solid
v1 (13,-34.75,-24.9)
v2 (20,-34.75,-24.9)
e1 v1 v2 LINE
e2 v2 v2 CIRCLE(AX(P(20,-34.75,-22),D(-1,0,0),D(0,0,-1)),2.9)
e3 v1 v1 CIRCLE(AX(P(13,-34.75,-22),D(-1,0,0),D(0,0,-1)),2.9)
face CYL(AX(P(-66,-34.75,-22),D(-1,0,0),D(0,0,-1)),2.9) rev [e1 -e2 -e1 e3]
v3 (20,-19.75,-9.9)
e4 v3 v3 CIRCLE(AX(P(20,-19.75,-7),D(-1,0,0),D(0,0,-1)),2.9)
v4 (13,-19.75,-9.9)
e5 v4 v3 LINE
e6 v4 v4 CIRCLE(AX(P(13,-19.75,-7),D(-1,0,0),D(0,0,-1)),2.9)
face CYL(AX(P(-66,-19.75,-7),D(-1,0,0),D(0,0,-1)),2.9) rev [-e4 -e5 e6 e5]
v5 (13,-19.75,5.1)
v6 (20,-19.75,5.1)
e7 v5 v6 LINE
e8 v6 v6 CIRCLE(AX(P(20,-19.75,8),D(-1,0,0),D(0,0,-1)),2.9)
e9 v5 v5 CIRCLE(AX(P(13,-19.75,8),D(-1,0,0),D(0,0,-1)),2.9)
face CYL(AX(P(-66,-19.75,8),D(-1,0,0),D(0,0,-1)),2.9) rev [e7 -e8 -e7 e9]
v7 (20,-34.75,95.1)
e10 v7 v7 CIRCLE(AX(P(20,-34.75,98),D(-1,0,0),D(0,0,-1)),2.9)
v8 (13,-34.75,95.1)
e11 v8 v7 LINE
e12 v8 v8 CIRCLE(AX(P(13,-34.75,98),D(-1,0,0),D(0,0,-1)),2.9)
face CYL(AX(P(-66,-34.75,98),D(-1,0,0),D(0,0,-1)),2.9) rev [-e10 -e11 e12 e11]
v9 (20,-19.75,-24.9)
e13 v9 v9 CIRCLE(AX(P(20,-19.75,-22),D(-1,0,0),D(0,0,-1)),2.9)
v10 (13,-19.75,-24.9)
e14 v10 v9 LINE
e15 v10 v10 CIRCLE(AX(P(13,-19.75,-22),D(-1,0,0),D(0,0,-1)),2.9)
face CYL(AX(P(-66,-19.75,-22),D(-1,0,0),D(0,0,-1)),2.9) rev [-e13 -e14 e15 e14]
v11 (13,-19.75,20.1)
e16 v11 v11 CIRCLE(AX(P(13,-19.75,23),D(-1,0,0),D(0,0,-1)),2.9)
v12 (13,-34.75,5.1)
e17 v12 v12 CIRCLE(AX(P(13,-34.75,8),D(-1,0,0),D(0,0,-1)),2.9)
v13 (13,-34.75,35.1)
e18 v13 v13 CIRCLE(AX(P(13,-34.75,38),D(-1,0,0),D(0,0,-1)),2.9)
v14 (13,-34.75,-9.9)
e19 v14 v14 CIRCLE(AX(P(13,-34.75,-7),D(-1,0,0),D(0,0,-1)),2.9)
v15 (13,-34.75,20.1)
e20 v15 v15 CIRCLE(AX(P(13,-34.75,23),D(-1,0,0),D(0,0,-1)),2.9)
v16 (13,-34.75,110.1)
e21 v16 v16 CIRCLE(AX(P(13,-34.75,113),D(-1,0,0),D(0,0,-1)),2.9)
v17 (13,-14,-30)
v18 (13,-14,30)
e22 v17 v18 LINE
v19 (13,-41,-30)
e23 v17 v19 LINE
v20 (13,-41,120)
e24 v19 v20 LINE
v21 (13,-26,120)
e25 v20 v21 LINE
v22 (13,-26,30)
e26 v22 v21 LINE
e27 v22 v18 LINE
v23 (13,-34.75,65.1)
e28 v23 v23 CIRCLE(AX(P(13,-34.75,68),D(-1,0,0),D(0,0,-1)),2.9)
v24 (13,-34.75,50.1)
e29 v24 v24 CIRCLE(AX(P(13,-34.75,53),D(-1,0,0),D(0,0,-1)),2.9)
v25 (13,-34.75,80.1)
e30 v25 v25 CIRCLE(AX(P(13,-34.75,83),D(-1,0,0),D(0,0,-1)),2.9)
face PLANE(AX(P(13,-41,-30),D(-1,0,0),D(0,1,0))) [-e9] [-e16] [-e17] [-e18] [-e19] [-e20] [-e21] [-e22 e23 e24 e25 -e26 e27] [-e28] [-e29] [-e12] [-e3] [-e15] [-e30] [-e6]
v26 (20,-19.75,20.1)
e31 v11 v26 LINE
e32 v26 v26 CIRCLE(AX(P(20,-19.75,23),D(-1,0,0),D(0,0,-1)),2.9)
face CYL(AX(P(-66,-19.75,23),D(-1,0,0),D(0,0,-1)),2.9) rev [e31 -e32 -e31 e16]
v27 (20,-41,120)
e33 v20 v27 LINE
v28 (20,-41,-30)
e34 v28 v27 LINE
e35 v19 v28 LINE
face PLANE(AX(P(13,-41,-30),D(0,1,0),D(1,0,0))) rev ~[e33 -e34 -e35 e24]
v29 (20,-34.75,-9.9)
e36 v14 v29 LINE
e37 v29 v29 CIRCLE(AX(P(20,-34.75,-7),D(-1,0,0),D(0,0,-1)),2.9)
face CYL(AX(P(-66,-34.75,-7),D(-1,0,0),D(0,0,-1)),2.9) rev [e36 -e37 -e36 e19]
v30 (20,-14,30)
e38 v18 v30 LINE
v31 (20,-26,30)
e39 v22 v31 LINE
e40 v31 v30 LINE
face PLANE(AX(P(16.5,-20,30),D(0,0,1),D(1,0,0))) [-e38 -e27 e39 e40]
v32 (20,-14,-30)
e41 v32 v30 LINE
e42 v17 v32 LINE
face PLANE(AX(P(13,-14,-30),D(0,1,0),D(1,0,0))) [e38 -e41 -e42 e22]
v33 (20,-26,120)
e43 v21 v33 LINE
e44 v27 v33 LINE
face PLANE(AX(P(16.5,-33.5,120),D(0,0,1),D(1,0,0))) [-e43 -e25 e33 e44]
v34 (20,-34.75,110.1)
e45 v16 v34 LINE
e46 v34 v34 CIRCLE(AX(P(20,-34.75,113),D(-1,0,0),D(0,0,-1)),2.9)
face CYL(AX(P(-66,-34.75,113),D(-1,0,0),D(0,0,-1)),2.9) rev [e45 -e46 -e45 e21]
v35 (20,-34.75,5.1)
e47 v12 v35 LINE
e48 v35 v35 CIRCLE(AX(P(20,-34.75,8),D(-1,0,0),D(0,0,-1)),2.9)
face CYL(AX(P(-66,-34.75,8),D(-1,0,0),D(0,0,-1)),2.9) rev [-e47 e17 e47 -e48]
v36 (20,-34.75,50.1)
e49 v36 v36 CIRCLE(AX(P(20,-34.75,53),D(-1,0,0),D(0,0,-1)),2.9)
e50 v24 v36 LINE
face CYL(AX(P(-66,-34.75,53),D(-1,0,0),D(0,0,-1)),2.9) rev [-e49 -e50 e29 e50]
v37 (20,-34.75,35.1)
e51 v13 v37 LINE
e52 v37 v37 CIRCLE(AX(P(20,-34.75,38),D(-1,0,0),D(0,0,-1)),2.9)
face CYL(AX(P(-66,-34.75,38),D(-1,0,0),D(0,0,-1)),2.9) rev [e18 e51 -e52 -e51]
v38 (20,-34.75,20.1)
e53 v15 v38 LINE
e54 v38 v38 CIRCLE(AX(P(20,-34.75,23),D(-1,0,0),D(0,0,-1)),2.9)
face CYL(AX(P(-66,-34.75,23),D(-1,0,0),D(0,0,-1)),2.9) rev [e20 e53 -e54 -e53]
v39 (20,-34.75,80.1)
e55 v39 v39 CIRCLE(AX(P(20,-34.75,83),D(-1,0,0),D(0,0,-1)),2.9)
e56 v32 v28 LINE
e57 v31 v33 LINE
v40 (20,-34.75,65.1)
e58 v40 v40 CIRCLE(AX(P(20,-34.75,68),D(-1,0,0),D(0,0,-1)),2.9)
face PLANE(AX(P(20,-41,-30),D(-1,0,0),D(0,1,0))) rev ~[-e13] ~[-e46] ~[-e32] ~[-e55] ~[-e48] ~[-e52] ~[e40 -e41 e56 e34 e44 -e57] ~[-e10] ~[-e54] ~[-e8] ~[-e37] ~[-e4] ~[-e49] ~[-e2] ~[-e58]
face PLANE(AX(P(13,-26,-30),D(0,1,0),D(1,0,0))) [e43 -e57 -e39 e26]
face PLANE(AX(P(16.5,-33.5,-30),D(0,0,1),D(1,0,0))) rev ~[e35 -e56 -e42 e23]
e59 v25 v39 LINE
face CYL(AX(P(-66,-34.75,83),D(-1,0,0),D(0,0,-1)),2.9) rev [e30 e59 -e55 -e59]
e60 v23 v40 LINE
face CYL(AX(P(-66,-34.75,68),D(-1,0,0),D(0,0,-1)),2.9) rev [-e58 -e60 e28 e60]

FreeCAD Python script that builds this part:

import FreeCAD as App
import Part
import Sketcher
from FreeCAD import Vector
Q = App.Units.Quantity

doc = App.newDocument("Part")
body = doc.addObject("PartDesign::Body", "Body")

# Sketch on YZ plane
sketch1 = body.newObject("Sketcher::SketchObject", "Sketch")
sketch1.AttachmentSupport = (doc.getObject("YZ_Plane"), [""])
sketch1.MapMode = "FlatFace"
sketch1.AttachmentOffset = App.Placement(Vector(0, 0, -66), App.Rotation())
sketch1.addGeometry(Part.Circle(Vector(0, 25, 0), Vector(0, 0, 1), 2.9), False)
sketch1.addConstraint([
    Sketcher.Constraint("PointOnObject", 0, 3, -2),
    Sketcher.Constraint("Diameter", 0, Q("5.8 mm")),
    Sketcher.Constraint("DistanceY", -1, 1, 0, 3, Q("25 mm")),
])
pad1 = body.newObject("PartDesign::Pad", "Pad")
pad1.Profile = sketch1
pad1.Length = 132
body2 = doc.addObject("PartDesign::Body", "Body001")

# Sketch on YZ plane
sketch2 = body2.newObject("Sketcher::SketchObject", "Sketch001")
sketch2.AttachmentSupport = (doc.getObject("YZ_Plane001"), [""])
sketch2.MapMode = "FlatFace"
sketch2.AttachmentOffset = App.Placement(Vector(0, 0, -66), App.Rotation())
sketch2.addGeometry(Part.Circle(Vector(0, 40, 0), Vector(0, 0, 1), 2.9), False)
sketch2.addConstraint([
    Sketcher.Constraint("PointOnObject", 0, 3, -2),
    Sketcher.Constraint("Diameter", 0, Q("5.8 mm")),
    Sketcher.Constraint("DistanceY", -1, 1, 0, 3, Q("40 mm")),
])
pad2 = body2.newObject("PartDesign::Pad", "Pad001")
pad2.Profile = sketch2
pad2.Length = 132
body3 = doc.addObject("PartDesign::Body", "Body002")

# Sketch on YZ plane
sketch3 = body3.newObject("Sketcher::SketchObject", "Sketch002")
sketch3.AttachmentSupport = (doc.getObject("YZ_Plane002"), [""])
sketch3.MapMode = "FlatFace"
sketch3.AttachmentOffset = App.Placement(Vector(0, 0, -66), App.Rotation())
sketch3.addGeometry(Part.Circle(Vector(0, 55, 0), Vector(0, 0, 1), 2.9), False)
sketch3.addConstraint([
    Sketcher.Constraint("PointOnObject", 0, 3, -2),
    Sketcher.Constraint("Diameter", 0, Q("5.8 mm")),
    Sketcher.Constraint("DistanceY", -1, 1, 0, 3, Q("55 mm")),
])
pad3 = body3.newObject("PartDesign::Pad", "Pad002")
pad3.Profile = sketch3
pad3.Length = 132
body4 = doc.addObject("PartDesign::Body", "Body003")

# Sketch on YZ plane
sketch4 = body4.newObject("Sketcher::SketchObject", "Sketch003")
sketch4.AttachmentSupport = (doc.getObject("YZ_Plane003"), [""])
sketch4.MapMode = "FlatFace"
sketch4.AttachmentOffset = App.Placement(Vector(0, 0, -66), App.Rotation())
sketch4.addGeometry(Part.Circle(Vector(0, 70, 0), Vector(0, 0, 1), 2.9), False)
sketch4.addConstraint([
    Sketcher.Constraint("PointOnObject", 0, 3, -2),
    Sketcher.Constraint("Diameter", 0, Q("5.8 mm")),
    Sketcher.Constraint("DistanceY", -1, 1, 0, 3, Q("70 mm")),
])
pad4 = body4.newObject("PartDesign::Pad", "Pad003")
pad4.Profile = sketch4
pad4.Length = 132
body5 = doc.addObject("PartDesign::Body", "Body004")

# Sketch on YZ plane
sketch5 = body5.newObject("Sketcher::SketchObject", "Sketch004")
sketch5.AttachmentSupport = (doc.getObject("YZ_Plane004"), [""])
sketch5.MapMode = "FlatFace"
sketch5.AttachmentOffset = App.Placement(Vector(0, 0, -66), App.Rotation())
sketch5.addGeometry(Part.Circle(Vector(0, 85, 0), Vector(0, 0, 1), 2.9), False)
sketch5.addConstraint([
    Sketcher.Constraint("PointOnObject", 0, 3, -2),
    Sketcher.Constraint("Diameter", 0, Q("5.8 mm")),
    Sketcher.Constraint("DistanceY", -1, 1, 0, 3, Q("85 mm")),
])
pad5 = body5.newObject("PartDesign::Pad", "Pad004")
pad5.Profile = sketch5
pad5.Length = 132
body6 = doc.addObject("PartDesign::Body", "Body005")

# Sketch on YZ plane
sketch6 = body6.newObject("Sketcher::SketchObject", "Sketch005")
sketch6.AttachmentSupport = (doc.getObject("YZ_Plane005"), [""])
sketch6.MapMode = "FlatFace"
sketch6.AttachmentOffset = App.Placement(Vector(0, 0, -66), App.Rotation())
sketch6.addGeometry(Part.Circle(Vector(0, 100, 0), Vector(0, 0, 1), 2.9), False)
sketch6.addConstraint([
    Sketcher.Constraint("PointOnObject", 0, 3, -2),
    Sketcher.Constraint("Diameter", 0, Q("5.8 mm")),
    Sketcher.Constraint("DistanceY", -1, 1, 0, 3, Q("100 mm")),
])
pad6 = body6.newObject("PartDesign::Pad", "Pad005")
pad6.Profile = sketch6
pad6.Length = 132
body7 = doc.addObject("PartDesign::Body", "Body006")

# Sketch on YZ plane
sketch7 = body7.newObject("Sketcher::SketchObject", "Sketch006")
sketch7.AttachmentSupport = (doc.getObject("YZ_Plane006"), [""])
sketch7.MapMode = "FlatFace"
sketch7.AttachmentOffset = App.Placement(Vector(0, 0, -66), App.Rotation())
sketch7.addGeometry(Part.Circle(Vector(0, 115, 0), Vector(0, 0, 1), 2.9), False)
sketch7.addConstraint([
    Sketcher.Constraint("PointOnObject", 0, 3, -2),
    Sketcher.Constraint("Diameter", 0, Q("5.8 mm")),
    Sketcher.Constraint("DistanceY", -1, 1, 0, 3, Q("115 mm")),
])
pad7 = body7.newObject("PartDesign::Pad", "Pad006")
pad7.Profile = sketch7
pad7.Length = 132
body8 = doc.addObject("PartDesign::Body", "Body007")

# Sketch on YZ plane
sketch8 = body8.newObject("Sketcher::SketchObject", "Sketch007")
sketch8.AttachmentSupport = (doc.getObject("YZ_Plane007"), [""])
sketch8.MapMode = "FlatFace"
sketch8.AttachmentOffset = App.Placement(Vector(0, 0, -66), App.Rotation())
sketch8.addGeometry(Part.Circle(Vector(0, 130, 0), Vector(0, 0, 1), 2.9), False)
sketch8.addConstraint([
    Sketcher.Constraint("PointOnObject", 0, 3, -2),
    Sketcher.Constraint("Diameter", 0, Q("5.8 mm")),
    Sketcher.Constraint("DistanceY", -1, 1, 0, 3, Q("130 mm")),
])
pad8 = body8.newObject("PartDesign::Pad", "Pad007")
pad8.Profile = sketch8
pad8.Length = 132
body9 = doc.addObject("PartDesign::Body", "Body008")

# Sketch on YZ plane
sketch9 = body9.newObject("Sketcher::SketchObject", "Sketch008")
sketch9.AttachmentSupport = (doc.getObject("YZ_Plane008"), [""])
sketch9.MapMode = "FlatFace"
sketch9.AttachmentOffset = App.Placement(Vector(0, 0, -66), App.Rotation())
sketch9.addGeometry(Part.Circle(Vector(0, 145, 0), Vector(0, 0, 1), 2.9), False)
sketch9.addConstraint([
    Sketcher.Constraint("PointOnObject", 0, 3, -2),
    Sketcher.Constraint("Diameter", 0, Q("5.8 mm")),
    Sketcher.Constraint("DistanceY", -1, 1, 0, 3, Q("145 mm")),
])
pad9 = body9.newObject("PartDesign::Pad", "Pad008")
pad9.Profile = sketch9
pad9.Length = 132
body10 = doc.addObject("PartDesign::Body", "Body009")

# Sketch on YZ plane
sketch10 = body10.newObject("Sketcher::SketchObject", "Sketch009")
sketch10.AttachmentSupport = (doc.getObject("YZ_Plane009"), [""])
sketch10.MapMode = "FlatFace"
sketch10.AttachmentOffset = App.Placement(Vector(0, 0, -66), App.Rotation())
sketch10.addGeometry(Part.Circle(Vector(0, 160, 0), Vector(0, 0, 1), 2.9), False)
sketch10.addConstraint([
    Sketcher.Constraint("PointOnObject", 0, 3, -2),
    Sketcher.Constraint("Diameter", 0, Q("5.8 mm")),
    Sketcher.Constraint("DistanceY", -1, 1, 0, 3, Q("160 mm")),
])
pad10 = body10.newObject("PartDesign::Pad", "Pad009")
pad10.Profile = sketch10
pad10.Length = 132
body11 = doc.addObject("PartDesign::Body", "Body010")

# Sketch on YZ plane
sketch11 = body11.newObject("Sketcher::SketchObject", "Sketch010")
sketch11.AttachmentSupport = (doc.getObject("YZ_Plane010"), [""])
sketch11.MapMode = "FlatFace"
sketch11.AttachmentOffset = App.Placement(Vector(0, 0, -66), App.Rotation())
sketch11.addGeometry(Part.Circle(Vector(0, 175, 0), Vector(0, 0, 1), 2.9), False)
sketch11.addConstraint([
    Sketcher.Constraint("PointOnObject", 0, 3, -2),
    Sketcher.Constraint("Diameter", 0, Q("5.8 mm")),
    Sketcher.Constraint("DistanceY", -1, 1, 0, 3, Q("175 mm")),
])
pad11 = body11.newObject("PartDesign::Pad", "Pad010")
pad11.Profile = sketch11
pad11.Length = 132
body12 = doc.addObject("PartDesign::Body", "Body011")

# Sketch on YZ plane
sketch12 = body12.newObject("Sketcher::SketchObject", "Sketch011")
sketch12.AttachmentSupport = (doc.getObject("YZ_Plane011"), [""])
sketch12.MapMode = "FlatFace"
sketch12.AttachmentOffset = App.Placement(Vector(0, 0, -66), App.Rotation())
sketch12.addGeometry(Part.Circle(Vector(0, 190, 0), Vector(0, 0, 1), 2.9), False)
sketch12.addConstraint([
    Sketcher.Constraint("PointOnObject", 0, 3, -2),
    Sketcher.Constraint("Diameter", 0, Q("5.8 mm")),
    Sketcher.Constraint("DistanceY", -1, 1, 0, 3, Q("190 mm")),
])
pad12 = body12.newObject("PartDesign::Pad", "Pad011")
pad12.Profile = sketch12
pad12.Length = 132
body13 = doc.addObject("PartDesign::Body", "Body012")

# Sketch on YZ plane
sketch13 = body13.newObject("Sketcher::SketchObject", "Sketch012")
sketch13.AttachmentSupport = (doc.getObject("YZ_Plane012"), [""])
sketch13.MapMode = "FlatFace"
sketch13.AttachmentOffset = App.Placement(Vector(0, 0, -66), App.Rotation())
sketch13.addGeometry(Part.Circle(Vector(0, 205, 0), Vector(0, 0, 1), 2.9), False)
sketch13.addConstraint([
    Sketcher.Constraint("PointOnObject", 0, 3, -2),
    Sketcher.Constraint("Diameter", 0, Q("5.8 mm")),
    Sketcher.Constraint("DistanceY", -1, 1, 0, 3, Q("205 mm")),
])
pad13 = body13.newObject("PartDesign::Pad", "Pad012")
pad13.Profile = sketch13
pad13.Length = 132
body14 = doc.addObject("PartDesign::Body", "Body013")

# Sketch on YZ plane
sketch14 = body14.newObject("Sketcher::SketchObject", "Sketch013")
sketch14.AttachmentSupport = (doc.getObject("YZ_Plane013"), [""])
sketch14.MapMode = "FlatFace"
sketch14.AttachmentOffset = App.Placement(Vector(0, 0, -66), App.Rotation())
sketch14.addGeometry(Part.Circle(Vector(0, 220, 0), Vector(0, 0, 1), 2.9), False)
sketch14.addConstraint([
    Sketcher.Constraint("PointOnObject", 0, 3, -2),
    Sketcher.Constraint("Diameter", 0, Q("5.8 mm")),
    Sketcher.Constraint("DistanceY", -1, 1, 0, 3, Q("220 mm")),
])
pad14 = body14.newObject("PartDesign::Pad", "Pad013")
pad14.Profile = sketch14
pad14.Length = 132
body15 = doc.addObject("PartDesign::Body", "Body014")

# Sketch on YZ plane
sketch15 = body15.newObject("Sketcher::SketchObject", "Sketch014")
sketch15.AttachmentSupport = (doc.getObject("YZ_Plane014"), [""])
sketch15.MapMode = "FlatFace"
sketch15.AttachmentOffset = App.Placement(Vector(0, 0, -66), App.Rotation())
sketch15.addGeometry(Part.Circle(Vector(0, 235, 0), Vector(0, 0, 1), 2.9), False)
sketch15.addConstraint([
    Sketcher.Constraint("PointOnObject", 0, 3, -2),
    Sketcher.Constraint("Diameter", 0, Q("5.8 mm")),
    Sketcher.Constraint("DistanceY", -1, 1, 0, 3, Q("235 mm")),
])
pad15 = body15.newObject("PartDesign::Pad", "Pad014")
pad15.Profile = sketch15
pad15.Length = 132
body16 = doc.addObject("PartDesign::Body", "Body015")

# Sketch on YZ plane
sketch16 = body16.newObject("Sketcher::SketchObject", "Sketch015")
sketch16.AttachmentSupport = (doc.getObject("YZ_Plane015"), [""])
sketch16.MapMode = "FlatFace"
sketch16.AttachmentOffset = App.Placement(Vector(0, 0, -66), App.Rotation())
sketch16.addGeometry(Part.Circle(Vector(0, 250, 0), Vector(0, 0, 1), 2.9), False)
sketch16.addConstraint([
    Sketcher.Constraint("PointOnObject", 0, 3, -2),
    Sketcher.Constraint("Diameter", 0, Q("5.8 mm")),
    Sketcher.Constraint("DistanceY", -1, 1, 0, 3, Q("250 mm")),
])
pad16 = body16.newObject("PartDesign::Pad", "Pad015")
pad16.Profile = sketch16
pad16.Length = 132
body17 = doc.addObject("PartDesign::Body", "Body016")

# Sketch on YZ plane
sketch17 = body17.newObject("Sketcher::SketchObject", "Sketch016")
sketch17.AttachmentSupport = (doc.getObject("YZ_Plane016"), [""])
sketch17.MapMode = "FlatFace"
sketch17.AttachmentOffset = App.Placement(Vector(0, 0, -66), App.Rotation())
sketch17.addGeometry(Part.Circle(Vector(0, 265, 0), Vector(0, 0, 1), 2.9), False)
sketch17.addConstraint([
    Sketcher.Constraint("PointOnObject", 0, 3, -2),
    Sketcher.Constraint("Diameter", 0, Q("5.8 mm")),
    Sketcher.Constraint("DistanceY", -1, 1, 0, 3, Q("265 mm")),
])
pad17 = body17.newObject("PartDesign::Pad", "Pad016")
pad17.Profile = sketch17
pad17.Length = 132
body18 = doc.addObject("PartDesign::Body", "Body017")

# Sketch on YZ plane
sketch18 = body18.newObject("Sketcher::SketchObject", "Sketch017")
sketch18.AttachmentSupport = (doc.getObject("YZ_Plane017"), [""])
sketch18.MapMode = "FlatFace"
sketch18.AttachmentOffset = App.Placement(Vector(0, 0, -66), App.Rotation())
sketch18.addGeometry(Part.Circle(Vector(0, 280, 0), Vector(0, 0, 1), 2.9), False)
sketch18.addConstraint([
    Sketcher.Constraint("PointOnObject", 0, 3, -2),
    Sketcher.Constraint("Diameter", 0, Q("5.8 mm")),
    Sketcher.Constraint("DistanceY", -1, 1, 0, 3, Q("280 mm")),
])
pad18 = body18.newObject("PartDesign::Pad", "Pad017")
pad18.Profile = sketch18
pad18.Length = 132
body19 = doc.addObject("PartDesign::Body", "Body018")

# Sketch on YZ plane
sketch19 = body19.newObject("Sketcher::SketchObject", "Sketch018")
sketch19.AttachmentSupport = (doc.getObject("YZ_Plane018"), [""])
sketch19.MapMode = "FlatFace"
sketch19.AttachmentOffset = App.Placement(Vector(0, 0, -66), App.Rotation())
sketch19.addGeometry(Part.Circle(Vector(0, 295, 0), Vector(0, 0, 1), 2.9), False)
sketch19.addConstraint([
    Sketcher.Constraint("PointOnObject", 0, 3, -2),
    Sketcher.Constraint("Diameter", 0, Q("5.8 mm")),
    Sketcher.Constraint("DistanceY", -1, 1, 0, 3, Q("295 mm")),
])
pad19 = body19.newObject("PartDesign::Pad", "Pad018")
pad19.Profile = sketch19
pad19.Length = 132
body20 = doc.addObject("PartDesign::Body", "Body019")
body20.AllowCompound = True

# Sketch on YZ plane
sketch20 = body20.newObject("Sketcher::SketchObject", "Sketch019")
sketch20.AttachmentSupport = (doc.getObject("YZ_Plane019"), [""])
sketch20.MapMode = "FlatFace"
sketch20.AttachmentOffset = App.Placement(Vector(0, 0, -66), App.Rotation())
sketch20.addGeometry(Part.Circle(Vector(0, 10, 0), Vector(0, 0, 1), 2.9), False)
sketch20.addConstraint([
    Sketcher.Constraint("PointOnObject", 0, 3, -2),
    Sketcher.Constraint("Diameter", 0, Q("5.8 mm")),
    Sketcher.Constraint("DistanceY", -1, 1, 0, 3, Q("10 mm")),
])
pad20 = body20.newObject("PartDesign::Pad", "Pad019")
pad20.Profile = sketch20
pad20.Length = 132
doc.recompute()

boolean = body20.newObject("PartDesign::Boolean", "Boolean")
boolean.Type = "Fuse"
boolean.addObjects([body])
doc.recompute()

boolean2 = body20.newObject("PartDesign::Boolean", "Boolean001")
boolean2.Type = "Fuse"
boolean2.addObjects([body2])
doc.recompute()

boolean3 = body20.newObject("PartDesign::Boolean", "Boolean002")
boolean3.Type = "Fuse"
boolean3.addObjects([body3])
doc.recompute()

boolean4 = body20.newObject("PartDesign::Boolean", "Boolean003")
boolean4.Type = "Fuse"
boolean4.addObjects([body4])
doc.recompute()

boolean5 = body20.newObject("PartDesign::Boolean", "Boolean004")
boolean5.Type = "Fuse"
boolean5.addObjects([body5])
doc.recompute()

boolean6 = body20.newObject("PartDesign::Boolean", "Boolean005")
boolean6.Type = "Fuse"
boolean6.addObjects([body6])
doc.recompute()

boolean7 = body20.newObject("PartDesign::Boolean", "Boolean006")
boolean7.Type = "Fuse"
boolean7.addObjects([body7])
doc.recompute()

boolean8 = body20.newObject("PartDesign::Boolean", "Boolean007")
boolean8.Type = "Fuse"
boolean8.addObjects([body8])
doc.recompute()

boolean9 = body20.newObject("PartDesign::Boolean", "Boolean008")
boolean9.Type = "Fuse"
boolean9.addObjects([body9])
doc.recompute()

boolean10 = body20.newObject("PartDesign::Boolean", "Boolean009")
boolean10.Type = "Fuse"
boolean10.addObjects([body10])
doc.recompute()

boolean11 = body20.newObject("PartDesign::Boolean", "Boolean010")
boolean11.Type = "Fuse"
boolean11.addObjects([body11])
doc.recompute()

boolean12 = body20.newObject("PartDesign::Boolean", "Boolean011")
boolean12.Type = "Fuse"
boolean12.addObjects([body12])
doc.recompute()

boolean13 = body20.newObject("PartDesign::Boolean", "Boolean012")
boolean13.Type = "Fuse"
boolean13.addObjects([body13])
doc.recompute()

boolean14 = body20.newObject("PartDesign::Boolean", "Boolean013")
boolean14.Type = "Fuse"
boolean14.addObjects([body14])
doc.recompute()

boolean15 = body20.newObject("PartDesign::Boolean", "Boolean014")
boolean15.Type = "Fuse"
boolean15.addObjects([body15])
doc.recompute()

boolean16 = body20.newObject("PartDesign::Boolean", "Boolean015")
boolean16.Type = "Fuse"
boolean16.addObjects([body16])
doc.recompute()

boolean17 = body20.newObject("PartDesign::Boolean", "Boolean016")
boolean17.Type = "Fuse"
boolean17.addObjects([body17])
doc.recompute()

boolean18 = body20.newObject("PartDesign::Boolean", "Boolean017")
boolean18.Type = "Fuse"
boolean18.addObjects([body18])
doc.recompute()

boolean19 = body20.newObject("PartDesign::Boolean", "Boolean018")
boolean19.Type = "Fuse"
boolean19.addObjects([body19])
body21 = doc.addObject("PartDesign::Body", "Body020")
body21.AllowCompound = True
doc.recompute()

body20.Placement = App.Placement(Vector(0, -34.75, -32), App.Rotation(Vector(0, 0, 1), 0))
boolean20 = body21.newObject("PartDesign::Boolean", "Boolean019")
boolean20.Type = "Fuse"
boolean20.addObjects([body20])
body22 = doc.addObject("PartDesign::Body", "Body021")

# Sketch on YZ plane
sketch21 = body22.newObject("Sketcher::SketchObject", "Sketch020")
sketch21.AttachmentSupport = (doc.getObject("YZ_Plane021"), [""])
sketch21.MapMode = "FlatFace"
sketch21.AttachmentOffset = App.Placement(Vector(0, 0, -66), App.Rotation())
sketch21.addGeometry(Part.Circle(Vector(0, 25, 0), Vector(0, 0, 1), 2.9), False)
sketch21.addConstraint([
    Sketcher.Constraint("PointOnObject", 0, 3, -2),
    Sketcher.Constraint("Diameter", 0, Q("5.8 mm")),
    Sketcher.Constraint("DistanceY", -1, 1, 0, 3, Q("25 mm")),
])
pad21 = body22.newObject("PartDesign::Pad", "Pad020")
pad21.Profile = sketch21
pad21.Length = 132
body23 = doc.addObject("PartDesign::Body", "Body022")

# Sketch on YZ plane
sketch22 = body23.newObject("Sketcher::SketchObject", "Sketch021")
sketch22.AttachmentSupport = (doc.getObject("YZ_Plane022"), [""])
sketch22.MapMode = "FlatFace"
sketch22.AttachmentOffset = App.Placement(Vector(0, 0, -66), App.Rotation())
sketch22.addGeometry(Part.Circle(Vector(0, 40, 0), Vector(0, 0, 1), 2.9), False)
sketch22.addConstraint([
    Sketcher.Constraint("PointOnObject", 0, 3, -2),
    Sketcher.Constraint("Diameter", 0, Q("5.8 mm")),
    Sketcher.Constraint("DistanceY", -1, 1, 0, 3, Q("40 mm")),
])
pad22 = body23.newObject("PartDesign::Pad", "Pad021")
pad22.Profile = sketch22
pad22.Length = 132
body24 = doc.addObject("PartDesign::Body", "Body023")

# Sketch on YZ plane
sketch23 = body24.newObject("Sketcher::SketchObject", "Sketch022")
sketch23.AttachmentSupport = (doc.getObject("YZ_Plane023"), [""])
sketch23.MapMode = "FlatFace"
sketch23.AttachmentOffset = App.Placement(Vector(0, 0, -66), App.Rotation())
sketch23.addGeometry(Part.Circle(Vector(0, 55, 0), Vector(0, 0, 1), 2.9), False)
sketch23.addConstraint([
    Sketcher.Constraint("PointOnObject", 0, 3, -2),
    Sketcher.Constraint("Diameter", 0, Q("5.8 mm")),
    Sketcher.Constraint("DistanceY", -1, 1, 0, 3, Q("55 mm")),
])
pad23 = body24.newObject("PartDesign::Pad", "Pad022")
pad23.Profile = sketch23
pad23.Length = 132
body25 = doc.addObject("PartDesign::Body", "Body024")

# Sketch on YZ plane
sketch24 = body25.newObject("Sketcher::SketchObject", "Sketch023")
sketch24.AttachmentSupport = (doc.getObject("YZ_Plane024"), [""])
sketch24.MapMode = "FlatFace"
sketch24.AttachmentOffset = App.Placement(Vector(0, 0, -66), App.Rotation())
sketch24.addGeometry(Part.Circle(Vector(0, 70, 0), Vector(0, 0, 1), 2.9), False)
sketch24.addConstraint([
    Sketcher.Constraint("PointOnObject", 0, 3, -2),
    Sketcher.Constraint("Diameter", 0, Q("5.8 mm")),
    Sketcher.Constraint("DistanceY", -1, 1, 0, 3, Q("70 mm")),
])
pad24 = body25.newObject("PartDesign::Pad", "Pad023")
pad24.Profile = sketch24
pad24.Length = 132
body26 = doc.addObject("PartDesign::Body", "Body025")

# Sketch on YZ plane
sketch25 = body26.newObject("Sketcher::SketchObject", "Sketch024")
sketch25.AttachmentSupport = (doc.getObject("YZ_Plane025"), [""])
sketch25.MapMode = "FlatFace"
sketch25.AttachmentOffset = App.Placement(Vector(0, 0, -66), App.Rotation())
sketch25.addGeometry(Part.Circle(Vector(0, 85, 0), Vector(0, 0, 1), 2.9), False)
sketch25.addConstraint([
    Sketcher.Constraint("PointOnObject", 0, 3, -2),
    Sketcher.Constraint("Diameter", 0, Q("5.8 mm")),
    Sketcher.Constraint("DistanceY", -1, 1, 0, 3, Q("85 mm")),
])
pad25 = body26.newObject("PartDesign::Pad", "Pad024")
pad25.Profile = sketch25
pad25.Length = 132
body27 = doc.addObject("PartDesign::Body", "Body026")

# Sketch on YZ plane
sketch26 = body27.newObject("Sketcher::SketchObject", "Sketch025")
sketch26.AttachmentSupport = (doc.getObject("YZ_Plane026"), [""])
sketch26.MapMode = "FlatFace"
sketch26.AttachmentOffset = App.Placement(Vector(0, 0, -66), App.Rotation())
sketch26.addGeometry(Part.Circle(Vector(0, 100, 0), Vector(0, 0, 1), 2.9), False)
sketch26.addConstraint([
    Sketcher.Constraint("PointOnObject", 0, 3, -2),
    Sketcher.Constraint("Diameter", 0, Q("5.8 mm")),
    Sketcher.Constraint("DistanceY", -1, 1, 0, 3, Q("100 mm")),
])
pad26 = body27.newObject("PartDesign::Pad", "Pad025")
pad26.Profile = sketch26
pad26.Length = 132
body28 = doc.addObject("PartDesign::Body", "Body027")

# Sketch on YZ plane
sketch27 = body28.newObject("Sketcher::SketchObject", "Sketch026")
sketch27.AttachmentSupport = (doc.getObject("YZ_Plane027"), [""])
sketch27.MapMode = "FlatFace"
sketch27.AttachmentOffset = App.Placement(Vector(0, 0, -66), App.Rotation())
sketch27.addGeometry(Part.Circle(Vector(0, 115, 0), Vector(0, 0, 1), 2.9), False)
sketch27.addConstraint([
    Sketcher.Constraint("PointOnObject", 0, 3, -2),
    Sketcher.Constraint("Diameter", 0, Q("5.8 mm")),
    Sketcher.Constraint("DistanceY", -1, 1, 0, 3, Q("115 mm")),
])
pad27 = body28.newObject("PartDesign::Pad", "Pad026")
pad27.Profile = sketch27
pad27.Length = 132
body29 = doc.addObject("PartDesign::Body", "Body028")

# Sketch on YZ plane
sketch28 = body29.newObject("Sketcher::SketchObject", "Sketch027")
sketch28.AttachmentSupport = (doc.getObject("YZ_Plane028"), [""])
sketch28.MapMode = "FlatFace"
sketch28.AttachmentOffset = App.Placement(Vector(0, 0, -66), App.Rotation())
sketch28.addGeometry(Part.Circle(Vector(0, 130, 0), Vector(0, 0, 1), 2.9), False)
sketch28.addConstraint([
    Sketcher.Constraint("PointOnObject", 0, 3, -2),
    Sketcher.Constraint("Diameter", 0, Q("5.8 mm")),
    Sketcher.Constraint("DistanceY", -1, 1, 0, 3, Q("130 mm")),
])
pad28 = body29.newObject("PartDesign::Pad", "Pad027")
pad28.Profile = sketch28
pad28.Length = 132
body30 = doc.addObject("PartDesign::Body", "Body029")

# Sketch on YZ plane
sketch29 = body30.newObject("Sketcher::SketchObject", "Sketch028")
sketch29.AttachmentSupport = (doc.getObject("YZ_Plane029"), [""])
sketch29.MapMode = "FlatFace"
sketch29.AttachmentOffset = App.Placement(Vector(0, 0, -66), App.Rotation())
sketch29.addGeometry(Part.Circle(Vector(0, 145, 0), Vector(0, 0, 1), 2.9), False)
sketch29.addConstraint([
    Sketcher.Constraint("PointOnObject", 0, 3, -2),
    Sketcher.Constraint("Diameter", 0, Q("5.8 mm")),
    Sketcher.Constraint("DistanceY", -1, 1, 0, 3, Q("145 mm")),
])
pad29 = body30.newObject("PartDesign::Pad", "Pad028")
pad29.Profile = sketch29
pad29.Length = 132
body31 = doc.addObject("PartDesign::Body", "Body030")

# Sketch on YZ plane
sketch30 = body31.newObject("Sketcher::SketchObject", "Sketch029")
sketch30.AttachmentSupport = (doc.getObject("YZ_Plane030"), [""])
sketch30.MapMode = "FlatFace"
sketch30.AttachmentOffset = App.Placement(Vector(0, 0, -66), App.Rotation())
sketch30.addGeometry(Part.Circle(Vector(0, 160, 0), Vector(0, 0, 1), 2.9), False)
sketch30.addConstraint([
    Sketcher.Constraint("PointOnObject", 0, 3, -2),
    Sketcher.Constraint("Diameter", 0, Q("5.8 mm")),
    Sketcher.Constraint("DistanceY", -1, 1, 0, 3, Q("160 mm")),
])
pad30 = body31.newObject("PartDesign::Pad", "Pad029")
pad30.Profile = sketch30
pad30.Length = 132
body32 = doc.addObject("PartDesign::Body", "Body031")

# Sketch on YZ plane
sketch31 = body32.newObject("Sketcher::SketchObject", "Sketch030")
sketch31.AttachmentSupport = (doc.getObject("YZ_Plane031"), [""])
sketch31.MapMode = "FlatFace"
sketch31.AttachmentOffset = App.Placement(Vector(0, 0, -66), App.Rotation())
sketch31.addGeometry(Part.Circle(Vector(0, 175, 0), Vector(0, 0, 1), 2.9), False)
sketch31.addConstraint([
    Sketcher.Constraint("PointOnObject", 0, 3, -2),
    Sketcher.Constraint("Diameter", 0, Q("5.8 mm")),
    Sketcher.Constraint("DistanceY", -1, 1, 0, 3, Q("175 mm")),
])
pad31 = body32.newObject("PartDesign::Pad", "Pad030")
pad31.Profile = sketch31
pad31.Length = 132
body33 = doc.addObject("PartDesign::Body", "Body032")

# Sketch on YZ plane
sketch32 = body33.newObject("Sketcher::SketchObject", "Sketch031")
sketch32.AttachmentSupport = (doc.getObject("YZ_Plane032"), [""])
sketch32.MapMode = "FlatFace"
sketch32.AttachmentOffset = App.Placement(Vector(0, 0, -66), App.Rotation())
sketch32.addGeometry(Part.Circle(Vector(0, 190, 0), Vector(0, 0, 1), 2.9), False)
sketch32.addConstraint([
    Sketcher.Constraint("PointOnObject", 0, 3, -2),
    Sketcher.Constraint("Diameter", 0, Q("5.8 mm")),
    Sketcher.Constraint("DistanceY", -1, 1, 0, 3, Q("190 mm")),
])
pad32 = body33.newObject("PartDesign::Pad", "Pad031")
pad32.Profile = sketch32
pad32.Length = 132
body34 = doc.addObject("PartDesign::Body", "Body033")

# Sketch on YZ plane
sketch33 = body34.newObject("Sketcher::SketchObject", "Sketch032")
sketch33.AttachmentSupport = (doc.getObject("YZ_Plane033"), [""])
sketch33.MapMode = "FlatFace"
sketch33.AttachmentOffset = App.Placement(Vector(0, 0, -66), App.Rotation())
sketch33.addGeometry(Part.Circle(Vector(0, 205, 0), Vector(0, 0, 1), 2.9), False)
sketch33.addConstraint([
    Sketcher.Constraint("PointOnObject", 0, 3, -2),
    Sketcher.Constraint("Diameter", 0, Q("5.8 mm")),
    Sketcher.Constraint("DistanceY", -1, 1, 0, 3, Q("205 mm")),
])
pad33 = body34.newObject("PartDesign::Pad", "Pad032")
pad33.Profile = sketch33
pad33.Length = 132
body35 = doc.addObject("PartDesign::Body", "Body034")

# Sketch on YZ plane
sketch34 = body35.newObject("Sketcher::SketchObject", "Sketch033")
sketch34.AttachmentSupport = (doc.getObject("YZ_Plane034"), [""])
sketch34.MapMode = "FlatFace"
sketch34.AttachmentOffset = App.Placement(Vector(0, 0, -66), App.Rotation())
sketch34.addGeometry(Part.Circle(Vector(0, 220, 0), Vector(0, 0, 1), 2.9), False)
sketch34.addConstraint([
    Sketcher.Constraint("PointOnObject", 0, 3, -2),
    Sketcher.Constraint("Diameter", 0, Q("5.8 mm")),
    Sketcher.Constraint("DistanceY", -1, 1, 0, 3, Q("220 mm")),
])
pad34 = body35.newObject("PartDesign::Pad", "Pad033")
pad34.Profile = sketch34
pad34.Length = 132
body36 = doc.addObject("PartDesign::Body", "Body035")

# Sketch on YZ plane
sketch35 = body36.newObject("Sketcher::SketchObject", "Sketch034")
sketch35.AttachmentSupport = (doc.getObject("YZ_Plane035"), [""])
sketch35.MapMode = "FlatFace"
sketch35.AttachmentOffset = App.Placement(Vector(0, 0, -66), App.Rotation())
sketch35.addGeometry(Part.Circle(Vector(0, 235, 0), Vector(0, 0, 1), 2.9), False)
sketch35.addConstraint([
    Sketcher.Constraint("PointOnObject", 0, 3, -2),
    Sketcher.Constraint("Diameter", 0, Q("5.8 mm")),
    Sketcher.Constraint("DistanceY", -1, 1, 0, 3, Q("235 mm")),
])
pad35 = body36.newObject("PartDesign::Pad", "Pad034")
pad35.Profile = sketch35
pad35.Length = 132
body37 = doc.addObject("PartDesign::Body", "Body036")

# Sketch on YZ plane
sketch36 = body37.newObject("Sketcher::SketchObject", "Sketch035")
sketch36.AttachmentSupport = (doc.getObject("YZ_Plane036"), [""])
sketch36.MapMode = "FlatFace"
sketch36.AttachmentOffset = App.Placement(Vector(0, 0, -66), App.Rotation())
sketch36.addGeometry(Part.Circle(Vector(0, 250, 0), Vector(0, 0, 1), 2.9), False)
sketch36.addConstraint([
    Sketcher.Constraint("PointOnObject", 0, 3, -2),
    Sketcher.Constraint("Diameter", 0, Q("5.8 mm")),
    Sketcher.Constraint("DistanceY", -1, 1, 0, 3, Q("250 mm")),
])
pad36 = body37.newObject("PartDesign::Pad", "Pad035")
pad36.Profile = sketch36
pad36.Length = 132
body38 = doc.addObject("PartDesign::Body", "Body037")

# Sketch on YZ plane
sketch37 = body38.newObject("Sketcher::SketchObject", "Sketch036")
sketch37.AttachmentSupport = (doc.getObject("YZ_Plane037"), [""])
sketch37.MapMode = "FlatFace"
sketch37.AttachmentOffset = App.Placement(Vector(0, 0, -66), App.Rotation())
sketch37.addGeometry(Part.Circle(Vector(0, 265, 0), Vector(0, 0, 1), 2.9), False)
sketch37.addConstraint([
    Sketcher.Constraint("PointOnObject", 0, 3, -2),
    Sketcher.Constraint("Diameter", 0, Q("5.8 mm")),
    Sketcher.Constraint("DistanceY", -1, 1, 0, 3, Q("265 mm")),
])
pad37 = body38.newObject("PartDesign::Pad", "Pad036")
pad37.Profile = sketch37
pad37.Length = 132
body39 = doc.addObject("PartDesign::Body", "Body038")

# Sketch on YZ plane
sketch38 = body39.newObject("Sketcher::SketchObject", "Sketch037")
sketch38.AttachmentSupport = (doc.getObject("YZ_Plane038"), [""])
sketch38.MapMode = "FlatFace"
sketch38.AttachmentOffset = App.Placement(Vector(0, 0, -66), App.Rotation())
sketch38.addGeometry(Part.Circle(Vector(0, 280, 0), Vector(0, 0, 1), 2.9), False)
sketch38.addConstraint([
    Sketcher.Constraint("PointOnObject", 0, 3, -2),
    Sketcher.Constraint("Diameter", 0, Q("5.8 mm")),
    Sketcher.Constraint("DistanceY", -1, 1, 0, 3, Q("280 mm")),
])
pad38 = body39.newObject("PartDesign::Pad", "Pad037")
pad38.Profile = sketch38
pad38.Length = 132
body40 = doc.addObject("PartDesign::Body", "Body039")

# Sketch on YZ plane
sketch39 = body40.newObject("Sketcher::SketchObject", "Sketch038")
sketch39.AttachmentSupport = (doc.getObject("YZ_Plane039"), [""])
sketch39.MapMode = "FlatFace"
sketch39.AttachmentOffset = App.Placement(Vector(0, 0, -66), App.Rotation())
sketch39.addGeometry(Part.Circle(Vector(0, 295, 0), Vector(0, 0, 1), 2.9), False)
sketch39.addConstraint([
    Sketcher.Constraint("PointOnObject", 0, 3, -2),
    Sketcher.Constraint("Diameter", 0, Q("5.8 mm")),
    Sketcher.Constraint("DistanceY", -1, 1, 0, 3, Q("295 mm")),
])
pad39 = body40.newObject("PartDesign::Pad", "Pad038")
pad39.Profile = sketch39
pad39.Length = 132
body41 = doc.addObject("PartDesign::Body", "Body040")
body41.AllowCompound = True

# Sketch on YZ plane
sketch40 = body41.newObject("Sketcher::SketchObject", "Sketch039")
sketch40.AttachmentSupport = (doc.getObject("YZ_Plane040"), [""])
sketch40.MapMode = "FlatFace"
sketch40.AttachmentOffset = App.Placement(Vector(0, 0, -66), App.Rotation())
sketch40.addGeometry(Part.Circle(Vector(0, 10, 0), Vector(0, 0, 1), 2.9), False)
sketch40.addConstraint([
    Sketcher.Constraint("PointOnObject", 0, 3, -2),
    Sketcher.Constraint("Diameter", 0, Q("5.8 mm")),
    Sketcher.Constraint("DistanceY", -1, 1, 0, 3, Q("10 mm")),
])
pad40 = body41.newObject("PartDesign::Pad", "Pad039")
pad40.Profile = sketch40
pad40.Length = 132
doc.recompute()

boolean21 = body41.newObject("PartDesign::Boolean", "Boolean020")
boolean21.Type = "Fuse"
boolean21.addObjects([body22])
doc.recompute()

boolean22 = body41.newObject("PartDesign::Boolean", "Boolean021")
boolean22.Type = "Fuse"
boolean22.addObjects([body23])
doc.recompute()

boolean23 = body41.newObject("PartDesign::Boolean", "Boolean022")
boolean23.Type = "Fuse"
boolean23.addObjects([body24])
doc.recompute()

boolean24 = body41.newObject("PartDesign::Boolean", "Boolean023")
boolean24.Type = "Fuse"
boolean24.addObjects([body25])
doc.recompute()

boolean25 = body41.newObject("PartDesign::Boolean", "Boolean024")
boolean25.Type = "Fuse"
boolean25.addObjects([body26])
doc.recompute()

boolean26 = body41.newObject("PartDesign::Boolean", "Boolean025")
boolean26.Type = "Fuse"
boolean26.addObjects([body27])
doc.recompute()

boolean27 = body41.newObject("PartDesign::Boolean", "Boolean026")
boolean27.Type = "Fuse"
boolean27.addObjects([body28])
doc.recompute()

boolean28 = body41.newObject("PartDesign::Boolean", "Boolean027")
boolean28.Type = "Fuse"
boolean28.addObjects([body29])
doc.recompute()

boolean29 = body41.newObject("PartDesign::Boolean", "Boolean028")
boolean29.Type = "Fuse"
boolean29.addObjects([body30])
doc.recompute()

boolean30 = body41.newObject("PartDesign::Boolean", "Boolean029")
boolean30.Type = "Fuse"
boolean30.addObjects([body31])
doc.recompute()

boolean31 = body41.newObject("PartDesign::Boolean", "Boolean030")
boolean31.Type = "Fuse"
boolean31.addObjects([body32])
doc.recompute()

boolean32 = body41.newObject("PartDesign::Boolean", "Boolean031")
boolean32.Type = "Fuse"
boolean32.addObjects([body33])
doc.recompute()

boolean33 = body41.newObject("PartDesign::Boolean", "Boolean032")
boolean33.Type = "Fuse"
boolean33.addObjects([body34])
doc.recompute()

boolean34 = body41.newObject("PartDesign::Boolean", "Boolean033")
boolean34.Type = "Fuse"
boolean34.addObjects([body35])
doc.recompute()

boolean35 = body41.newObject("PartDesign::Boolean", "Boolean034")
boolean35.Type = "Fuse"
boolean35.addObjects([body36])
doc.recompute()

boolean36 = body41.newObject("PartDesign::Boolean", "Boolean035")
boolean36.Type = "Fuse"
boolean36.addObjects([body37])
doc.recompute()

boolean37 = body41.newObject("PartDesign::Boolean", "Boolean036")
boolean37.Type = "Fuse"
boolean37.addObjects([body38])
doc.recompute()

boolean38 = body41.newObject("PartDesign::Boolean", "Boolean037")
boolean38.Type = "Fuse"
boolean38.addObjects([body39])
doc.recompute()

boolean39 = body41.newObject("PartDesign::Boolean", "Boolean038")
boolean39.Type = "Fuse"
boolean39.addObjects([body40])
body42 = doc.addObject("PartDesign::Body", "Body041")
body42.AllowCompound = True
doc.recompute()

body41.Placement = App.Placement(Vector(0, -19.75, -32), App.Rotation(Vector(0, 0, 1), 0))
boolean40 = body42.newObject("PartDesign::Boolean", "Boolean039")
boolean40.Type = "Fuse"
boolean40.addObjects([body41])
doc.recompute()

boolean41 = body42.newObject("PartDesign::Boolean", "Boolean040")
boolean41.Type = "Fuse"
boolean41.addObjects([body21])
body43 = doc.addObject("PartDesign::Body", "Body042")

# Sketch on XY plane
sketch41 = body43.newObject("Sketcher::SketchObject", "Sketch040")
sketch41.AttachmentSupport = (doc.getObject("XY_Plane042"), [""])
sketch41.MapMode = "FlatFace"
sketch41.AttachmentOffset = App.Placement(Vector(0, 0, -30), App.Rotation())
sketch41.addGeometry([
    Part.LineSegment(Vector(-4, -6, 0), Vector(-4, -21, 0)),
    Part.LineSegment(Vector(-4, -21, 0), Vector(4, -21, 0)),
    Part.LineSegment(Vector(4, -21, 0), Vector(4, -6, 0)),
    Part.LineSegment(Vector(4, -6, 0), Vector(-4, -6, 0)),
], False)
sketch41.addConstraint([
    Sketcher.Constraint("Coincident", 0, 2, 1, 1),
    Sketcher.Constraint("Coincident", 1, 2, 2, 1),
    Sketcher.Constraint("Coincident", 2, 2, 3, 1),
    Sketcher.Constraint("Coincident", 3, 2, 0, 1),
    Sketcher.Constraint("Vertical", 0),
    Sketcher.Constraint("Horizontal", 1),
    Sketcher.Constraint("Vertical", 2),
    Sketcher.Constraint("Horizontal", 3),
    Sketcher.Constraint("DistanceX", 1, 1, 1, 2, Q("7 mm")),
    Sketcher.Constraint("DistanceY", 0, 2, 0, 1, Q("15 mm")),
    Sketcher.Constraint("DistanceY", 0, 2, -1, 1, Q("21 mm")),
    Sketcher.Constraint("DistanceX", 0, 2, -1, 1, Q("3.5 mm")),
])
pad41 = body43.newObject("PartDesign::Pad", "Pad040")
pad41.Profile = sketch41
pad41.Length = 150
body44 = doc.addObject("PartDesign::Body", "Body043")

# Sketch on XY plane
sketch42 = body44.newObject("Sketcher::SketchObject", "Sketch041")
sketch42.AttachmentSupport = (doc.getObject("XY_Plane043"), [""])
sketch42.MapMode = "FlatFace"
sketch42.AttachmentOffset = App.Placement(Vector(0, 0, -30), App.Rotation())
sketch42.addGeometry([
    Part.LineSegment(Vector(-4, 6, 0), Vector(-4, -6, 0)),
    Part.LineSegment(Vector(-4, -6, 0), Vector(4, -6, 0)),
    Part.LineSegment(Vector(4, -6, 0), Vector(4, 6, 0)),
    Part.LineSegment(Vector(4, 6, 0), Vector(-4, 6, 0)),
], False)
sketch42.addConstraint([
    Sketcher.Constraint("Coincident", 0, 2, 1, 1),
    Sketcher.Constraint("Coincident", 1, 2, 2, 1),
    Sketcher.Constraint("Coincident", 2, 2, 3, 1),
    Sketcher.Constraint("Coincident", 3, 2, 0, 1),
    Sketcher.Constraint("Vertical", 0),
    Sketcher.Constraint("Horizontal", 1),
    Sketcher.Constraint("Vertical", 2),
    Sketcher.Constraint("Horizontal", 3),
    Sketcher.Constraint("Symmetric", 0, 2, 2, 2, -1, 1),
    Sketcher.Constraint("DistanceX", 1, 1, 1, 2, Q("7 mm")),
    Sketcher.Constraint("DistanceY", 0, 2, 0, 1, Q("12 mm")),
])
pad42 = body44.newObject("PartDesign::Pad", "Pad041")
pad42.Profile = sketch42
pad42.Length = 60
doc.recompute()

boolean42 = body44.newObject("PartDesign::Boolean", "Boolean041")
boolean42.Type = "Fuse"
boolean42.addObjects([body43])
body45 = doc.addObject("PartDesign::Body", "Body044")
doc.recompute()

body44.Placement = App.Placement(Vector(16.5, -20, 0), App.Rotation(Vector(0, 0, 1), 0))
boolean43 = body45.newObject("PartDesign::Boolean", "Boolean042")
boolean43.Type = "Fuse"
boolean43.addObjects([body44])
doc.recompute()

boolean44 = body45.newObject("PartDesign::Boolean", "Boolean043")
boolean44.Type = "Cut"
boolean44.addObjects([body42])

doc.recompute()
